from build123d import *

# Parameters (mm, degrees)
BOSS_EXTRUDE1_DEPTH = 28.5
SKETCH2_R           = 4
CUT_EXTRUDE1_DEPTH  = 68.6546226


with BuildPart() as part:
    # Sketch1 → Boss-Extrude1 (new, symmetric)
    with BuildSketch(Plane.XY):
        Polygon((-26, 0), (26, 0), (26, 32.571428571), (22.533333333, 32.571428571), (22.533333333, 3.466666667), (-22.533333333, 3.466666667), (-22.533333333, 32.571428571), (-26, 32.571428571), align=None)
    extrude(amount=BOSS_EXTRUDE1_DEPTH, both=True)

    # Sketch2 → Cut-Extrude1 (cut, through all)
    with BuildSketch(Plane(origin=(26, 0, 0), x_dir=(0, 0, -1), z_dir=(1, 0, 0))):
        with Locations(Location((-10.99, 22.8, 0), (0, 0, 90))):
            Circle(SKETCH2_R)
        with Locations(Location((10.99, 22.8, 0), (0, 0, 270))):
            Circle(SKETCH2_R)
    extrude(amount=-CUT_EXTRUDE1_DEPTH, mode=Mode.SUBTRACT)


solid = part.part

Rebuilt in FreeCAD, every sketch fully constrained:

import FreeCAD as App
import Part
import Sketcher
Q = App.Units.Quantity

doc = App.newDocument("Part")
params = doc.addObject("Spreadsheet::Sheet", "Params")
for row, (alias, value) in enumerate([
    ("sketch1_width", "52 mm"),
    ("pad1_length", "57 mm"),
    ("sketch2_diameter", "8 mm"),
], start=1):
    params.set(f"A{row}", alias)
    params.set(f"B{row}", "=" + value)
    params.setAlias(f"B{row}", alias)

body = doc.addObject("PartDesign::Body", "Body")

# Sketch on XY plane
sketch1 = body.newObject("Sketcher::SketchObject", "Sketch")
sketch1.AttachmentSupport = (doc.getObject("XY_Plane"), [""])
sketch1.MapMode = "FlatFace"
sketch1.addGeometry([
    Part.LineSegment(App.Vector(-26, 0, 0), App.Vector(26, 0, 0)),  # 0
    Part.LineSegment(App.Vector(26, 0, 0), App.Vector(26, 32.6, 0)),  # 1
    Part.LineSegment(App.Vector(26, 32.6, 0), App.Vector(22.5, 32.6, 0)),  # 2
    Part.LineSegment(App.Vector(22.5, 32.6, 0), App.Vector(22.5, 3.5, 0)),  # 3
    Part.LineSegment(App.Vector(22.5, 3.5, 0), App.Vector(-22.5, 3.5, 0)),  # 4
    Part.LineSegment(App.Vector(-22.5, 3.5, 0), App.Vector(-22.5, 32.6, 0)),  # 5
    Part.LineSegment(App.Vector(-22.5, 32.6, 0), App.Vector(-26, 32.6, 0)),  # 6
    Part.LineSegment(App.Vector(-26, 32.6, 0), App.Vector(-26, 0, 0)),  # 7
], False)
sketch1.addConstraint([
    Sketcher.Constraint("Coincident", 0, 2, 1, 1),
    Sketcher.Constraint("Coincident", 1, 2, 2, 1),
    Sketcher.Constraint("Coincident", 2, 2, 3, 1),
    Sketcher.Constraint("Coincident", 3, 2, 4, 1),
    Sketcher.Constraint("Coincident", 4, 2, 5, 1),
    Sketcher.Constraint("Coincident", 5, 2, 6, 1),
    Sketcher.Constraint("Coincident", 6, 2, 7, 1),
    Sketcher.Constraint("Coincident", 7, 2, 0, 1),
    Sketcher.Constraint("Horizontal", 0),
    Sketcher.Constraint("Vertical", 1),
    Sketcher.Constraint("Horizontal", 2),
    Sketcher.Constraint("Vertical", 3),
    Sketcher.Constraint("Horizontal", 4),
    Sketcher.Constraint("Vertical", 5),
    Sketcher.Constraint("Horizontal", 6),
    Sketcher.Constraint("Vertical", 7),
    Sketcher.Constraint("Symmetric", 0, 2, 7, 2, -1, 1),
    Sketcher.Constraint("Symmetric", 2, 2, 5, 2, -2),
    Sketcher.Constraint("DistanceX", 0, 1, 0, 2, Q("52 mm")),
    Sketcher.Constraint("DistanceY", 1, 1, 1, 2, Q("32.571429 mm")),
    Sketcher.Constraint("DistanceY", 3, 2, 3, 1, Q("29.104762 mm")),
    Sketcher.Constraint("DistanceX", 2, 2, 2, 1, Q("3.466667 mm")),
])
sketch1.setExpression("Constraints[18]", "Params.sketch1_width")
pad1 = body.newObject("PartDesign::Pad", "Pad")
pad1.Profile = sketch1
pad1.setExpression("Length", "Params.pad1_length")
pad1.Midplane = True

# Sketch on YZ plane
sketch2 = body.newObject("Sketcher::SketchObject", "Sketch001")
sketch2.AttachmentSupport = (doc.getObject("YZ_Plane"), [""])
sketch2.MapMode = "FlatFace"
sketch2.AttachmentOffset = App.Placement(App.Vector(0, 0, 26), App.Rotation())
sketch2.addGeometry([
    Part.Circle(App.Vector(22.8, 11, 0), App.Vector(0, 0, 1), 4),
    Part.Circle(App.Vector(22.8, -11, 0), App.Vector(0, 0, 1), 4),
], False)
sketch2.addConstraint([
    Sketcher.Constraint("Equal", 0, 1),
    Sketcher.Constraint("Symmetric", 0, 3, 1, 3, -1),
    Sketcher.Constraint("Diameter", 0, Q("8 mm")),
    Sketcher.Constraint("DistanceX", -1, 1, 0, 3, Q("22.8 mm")),
    Sketcher.Constraint("DistanceY", -1, 1, 0, 3, Q("10.99 mm")),
])
sketch2.setExpression("Constraints[2]", "Params.sketch2_diameter")
pocket1 = body.newObject("PartDesign::Pocket", "Pocket")
pocket1.Profile = sketch2
pocket1.Type = "ThroughAll"

doc.recompute()
